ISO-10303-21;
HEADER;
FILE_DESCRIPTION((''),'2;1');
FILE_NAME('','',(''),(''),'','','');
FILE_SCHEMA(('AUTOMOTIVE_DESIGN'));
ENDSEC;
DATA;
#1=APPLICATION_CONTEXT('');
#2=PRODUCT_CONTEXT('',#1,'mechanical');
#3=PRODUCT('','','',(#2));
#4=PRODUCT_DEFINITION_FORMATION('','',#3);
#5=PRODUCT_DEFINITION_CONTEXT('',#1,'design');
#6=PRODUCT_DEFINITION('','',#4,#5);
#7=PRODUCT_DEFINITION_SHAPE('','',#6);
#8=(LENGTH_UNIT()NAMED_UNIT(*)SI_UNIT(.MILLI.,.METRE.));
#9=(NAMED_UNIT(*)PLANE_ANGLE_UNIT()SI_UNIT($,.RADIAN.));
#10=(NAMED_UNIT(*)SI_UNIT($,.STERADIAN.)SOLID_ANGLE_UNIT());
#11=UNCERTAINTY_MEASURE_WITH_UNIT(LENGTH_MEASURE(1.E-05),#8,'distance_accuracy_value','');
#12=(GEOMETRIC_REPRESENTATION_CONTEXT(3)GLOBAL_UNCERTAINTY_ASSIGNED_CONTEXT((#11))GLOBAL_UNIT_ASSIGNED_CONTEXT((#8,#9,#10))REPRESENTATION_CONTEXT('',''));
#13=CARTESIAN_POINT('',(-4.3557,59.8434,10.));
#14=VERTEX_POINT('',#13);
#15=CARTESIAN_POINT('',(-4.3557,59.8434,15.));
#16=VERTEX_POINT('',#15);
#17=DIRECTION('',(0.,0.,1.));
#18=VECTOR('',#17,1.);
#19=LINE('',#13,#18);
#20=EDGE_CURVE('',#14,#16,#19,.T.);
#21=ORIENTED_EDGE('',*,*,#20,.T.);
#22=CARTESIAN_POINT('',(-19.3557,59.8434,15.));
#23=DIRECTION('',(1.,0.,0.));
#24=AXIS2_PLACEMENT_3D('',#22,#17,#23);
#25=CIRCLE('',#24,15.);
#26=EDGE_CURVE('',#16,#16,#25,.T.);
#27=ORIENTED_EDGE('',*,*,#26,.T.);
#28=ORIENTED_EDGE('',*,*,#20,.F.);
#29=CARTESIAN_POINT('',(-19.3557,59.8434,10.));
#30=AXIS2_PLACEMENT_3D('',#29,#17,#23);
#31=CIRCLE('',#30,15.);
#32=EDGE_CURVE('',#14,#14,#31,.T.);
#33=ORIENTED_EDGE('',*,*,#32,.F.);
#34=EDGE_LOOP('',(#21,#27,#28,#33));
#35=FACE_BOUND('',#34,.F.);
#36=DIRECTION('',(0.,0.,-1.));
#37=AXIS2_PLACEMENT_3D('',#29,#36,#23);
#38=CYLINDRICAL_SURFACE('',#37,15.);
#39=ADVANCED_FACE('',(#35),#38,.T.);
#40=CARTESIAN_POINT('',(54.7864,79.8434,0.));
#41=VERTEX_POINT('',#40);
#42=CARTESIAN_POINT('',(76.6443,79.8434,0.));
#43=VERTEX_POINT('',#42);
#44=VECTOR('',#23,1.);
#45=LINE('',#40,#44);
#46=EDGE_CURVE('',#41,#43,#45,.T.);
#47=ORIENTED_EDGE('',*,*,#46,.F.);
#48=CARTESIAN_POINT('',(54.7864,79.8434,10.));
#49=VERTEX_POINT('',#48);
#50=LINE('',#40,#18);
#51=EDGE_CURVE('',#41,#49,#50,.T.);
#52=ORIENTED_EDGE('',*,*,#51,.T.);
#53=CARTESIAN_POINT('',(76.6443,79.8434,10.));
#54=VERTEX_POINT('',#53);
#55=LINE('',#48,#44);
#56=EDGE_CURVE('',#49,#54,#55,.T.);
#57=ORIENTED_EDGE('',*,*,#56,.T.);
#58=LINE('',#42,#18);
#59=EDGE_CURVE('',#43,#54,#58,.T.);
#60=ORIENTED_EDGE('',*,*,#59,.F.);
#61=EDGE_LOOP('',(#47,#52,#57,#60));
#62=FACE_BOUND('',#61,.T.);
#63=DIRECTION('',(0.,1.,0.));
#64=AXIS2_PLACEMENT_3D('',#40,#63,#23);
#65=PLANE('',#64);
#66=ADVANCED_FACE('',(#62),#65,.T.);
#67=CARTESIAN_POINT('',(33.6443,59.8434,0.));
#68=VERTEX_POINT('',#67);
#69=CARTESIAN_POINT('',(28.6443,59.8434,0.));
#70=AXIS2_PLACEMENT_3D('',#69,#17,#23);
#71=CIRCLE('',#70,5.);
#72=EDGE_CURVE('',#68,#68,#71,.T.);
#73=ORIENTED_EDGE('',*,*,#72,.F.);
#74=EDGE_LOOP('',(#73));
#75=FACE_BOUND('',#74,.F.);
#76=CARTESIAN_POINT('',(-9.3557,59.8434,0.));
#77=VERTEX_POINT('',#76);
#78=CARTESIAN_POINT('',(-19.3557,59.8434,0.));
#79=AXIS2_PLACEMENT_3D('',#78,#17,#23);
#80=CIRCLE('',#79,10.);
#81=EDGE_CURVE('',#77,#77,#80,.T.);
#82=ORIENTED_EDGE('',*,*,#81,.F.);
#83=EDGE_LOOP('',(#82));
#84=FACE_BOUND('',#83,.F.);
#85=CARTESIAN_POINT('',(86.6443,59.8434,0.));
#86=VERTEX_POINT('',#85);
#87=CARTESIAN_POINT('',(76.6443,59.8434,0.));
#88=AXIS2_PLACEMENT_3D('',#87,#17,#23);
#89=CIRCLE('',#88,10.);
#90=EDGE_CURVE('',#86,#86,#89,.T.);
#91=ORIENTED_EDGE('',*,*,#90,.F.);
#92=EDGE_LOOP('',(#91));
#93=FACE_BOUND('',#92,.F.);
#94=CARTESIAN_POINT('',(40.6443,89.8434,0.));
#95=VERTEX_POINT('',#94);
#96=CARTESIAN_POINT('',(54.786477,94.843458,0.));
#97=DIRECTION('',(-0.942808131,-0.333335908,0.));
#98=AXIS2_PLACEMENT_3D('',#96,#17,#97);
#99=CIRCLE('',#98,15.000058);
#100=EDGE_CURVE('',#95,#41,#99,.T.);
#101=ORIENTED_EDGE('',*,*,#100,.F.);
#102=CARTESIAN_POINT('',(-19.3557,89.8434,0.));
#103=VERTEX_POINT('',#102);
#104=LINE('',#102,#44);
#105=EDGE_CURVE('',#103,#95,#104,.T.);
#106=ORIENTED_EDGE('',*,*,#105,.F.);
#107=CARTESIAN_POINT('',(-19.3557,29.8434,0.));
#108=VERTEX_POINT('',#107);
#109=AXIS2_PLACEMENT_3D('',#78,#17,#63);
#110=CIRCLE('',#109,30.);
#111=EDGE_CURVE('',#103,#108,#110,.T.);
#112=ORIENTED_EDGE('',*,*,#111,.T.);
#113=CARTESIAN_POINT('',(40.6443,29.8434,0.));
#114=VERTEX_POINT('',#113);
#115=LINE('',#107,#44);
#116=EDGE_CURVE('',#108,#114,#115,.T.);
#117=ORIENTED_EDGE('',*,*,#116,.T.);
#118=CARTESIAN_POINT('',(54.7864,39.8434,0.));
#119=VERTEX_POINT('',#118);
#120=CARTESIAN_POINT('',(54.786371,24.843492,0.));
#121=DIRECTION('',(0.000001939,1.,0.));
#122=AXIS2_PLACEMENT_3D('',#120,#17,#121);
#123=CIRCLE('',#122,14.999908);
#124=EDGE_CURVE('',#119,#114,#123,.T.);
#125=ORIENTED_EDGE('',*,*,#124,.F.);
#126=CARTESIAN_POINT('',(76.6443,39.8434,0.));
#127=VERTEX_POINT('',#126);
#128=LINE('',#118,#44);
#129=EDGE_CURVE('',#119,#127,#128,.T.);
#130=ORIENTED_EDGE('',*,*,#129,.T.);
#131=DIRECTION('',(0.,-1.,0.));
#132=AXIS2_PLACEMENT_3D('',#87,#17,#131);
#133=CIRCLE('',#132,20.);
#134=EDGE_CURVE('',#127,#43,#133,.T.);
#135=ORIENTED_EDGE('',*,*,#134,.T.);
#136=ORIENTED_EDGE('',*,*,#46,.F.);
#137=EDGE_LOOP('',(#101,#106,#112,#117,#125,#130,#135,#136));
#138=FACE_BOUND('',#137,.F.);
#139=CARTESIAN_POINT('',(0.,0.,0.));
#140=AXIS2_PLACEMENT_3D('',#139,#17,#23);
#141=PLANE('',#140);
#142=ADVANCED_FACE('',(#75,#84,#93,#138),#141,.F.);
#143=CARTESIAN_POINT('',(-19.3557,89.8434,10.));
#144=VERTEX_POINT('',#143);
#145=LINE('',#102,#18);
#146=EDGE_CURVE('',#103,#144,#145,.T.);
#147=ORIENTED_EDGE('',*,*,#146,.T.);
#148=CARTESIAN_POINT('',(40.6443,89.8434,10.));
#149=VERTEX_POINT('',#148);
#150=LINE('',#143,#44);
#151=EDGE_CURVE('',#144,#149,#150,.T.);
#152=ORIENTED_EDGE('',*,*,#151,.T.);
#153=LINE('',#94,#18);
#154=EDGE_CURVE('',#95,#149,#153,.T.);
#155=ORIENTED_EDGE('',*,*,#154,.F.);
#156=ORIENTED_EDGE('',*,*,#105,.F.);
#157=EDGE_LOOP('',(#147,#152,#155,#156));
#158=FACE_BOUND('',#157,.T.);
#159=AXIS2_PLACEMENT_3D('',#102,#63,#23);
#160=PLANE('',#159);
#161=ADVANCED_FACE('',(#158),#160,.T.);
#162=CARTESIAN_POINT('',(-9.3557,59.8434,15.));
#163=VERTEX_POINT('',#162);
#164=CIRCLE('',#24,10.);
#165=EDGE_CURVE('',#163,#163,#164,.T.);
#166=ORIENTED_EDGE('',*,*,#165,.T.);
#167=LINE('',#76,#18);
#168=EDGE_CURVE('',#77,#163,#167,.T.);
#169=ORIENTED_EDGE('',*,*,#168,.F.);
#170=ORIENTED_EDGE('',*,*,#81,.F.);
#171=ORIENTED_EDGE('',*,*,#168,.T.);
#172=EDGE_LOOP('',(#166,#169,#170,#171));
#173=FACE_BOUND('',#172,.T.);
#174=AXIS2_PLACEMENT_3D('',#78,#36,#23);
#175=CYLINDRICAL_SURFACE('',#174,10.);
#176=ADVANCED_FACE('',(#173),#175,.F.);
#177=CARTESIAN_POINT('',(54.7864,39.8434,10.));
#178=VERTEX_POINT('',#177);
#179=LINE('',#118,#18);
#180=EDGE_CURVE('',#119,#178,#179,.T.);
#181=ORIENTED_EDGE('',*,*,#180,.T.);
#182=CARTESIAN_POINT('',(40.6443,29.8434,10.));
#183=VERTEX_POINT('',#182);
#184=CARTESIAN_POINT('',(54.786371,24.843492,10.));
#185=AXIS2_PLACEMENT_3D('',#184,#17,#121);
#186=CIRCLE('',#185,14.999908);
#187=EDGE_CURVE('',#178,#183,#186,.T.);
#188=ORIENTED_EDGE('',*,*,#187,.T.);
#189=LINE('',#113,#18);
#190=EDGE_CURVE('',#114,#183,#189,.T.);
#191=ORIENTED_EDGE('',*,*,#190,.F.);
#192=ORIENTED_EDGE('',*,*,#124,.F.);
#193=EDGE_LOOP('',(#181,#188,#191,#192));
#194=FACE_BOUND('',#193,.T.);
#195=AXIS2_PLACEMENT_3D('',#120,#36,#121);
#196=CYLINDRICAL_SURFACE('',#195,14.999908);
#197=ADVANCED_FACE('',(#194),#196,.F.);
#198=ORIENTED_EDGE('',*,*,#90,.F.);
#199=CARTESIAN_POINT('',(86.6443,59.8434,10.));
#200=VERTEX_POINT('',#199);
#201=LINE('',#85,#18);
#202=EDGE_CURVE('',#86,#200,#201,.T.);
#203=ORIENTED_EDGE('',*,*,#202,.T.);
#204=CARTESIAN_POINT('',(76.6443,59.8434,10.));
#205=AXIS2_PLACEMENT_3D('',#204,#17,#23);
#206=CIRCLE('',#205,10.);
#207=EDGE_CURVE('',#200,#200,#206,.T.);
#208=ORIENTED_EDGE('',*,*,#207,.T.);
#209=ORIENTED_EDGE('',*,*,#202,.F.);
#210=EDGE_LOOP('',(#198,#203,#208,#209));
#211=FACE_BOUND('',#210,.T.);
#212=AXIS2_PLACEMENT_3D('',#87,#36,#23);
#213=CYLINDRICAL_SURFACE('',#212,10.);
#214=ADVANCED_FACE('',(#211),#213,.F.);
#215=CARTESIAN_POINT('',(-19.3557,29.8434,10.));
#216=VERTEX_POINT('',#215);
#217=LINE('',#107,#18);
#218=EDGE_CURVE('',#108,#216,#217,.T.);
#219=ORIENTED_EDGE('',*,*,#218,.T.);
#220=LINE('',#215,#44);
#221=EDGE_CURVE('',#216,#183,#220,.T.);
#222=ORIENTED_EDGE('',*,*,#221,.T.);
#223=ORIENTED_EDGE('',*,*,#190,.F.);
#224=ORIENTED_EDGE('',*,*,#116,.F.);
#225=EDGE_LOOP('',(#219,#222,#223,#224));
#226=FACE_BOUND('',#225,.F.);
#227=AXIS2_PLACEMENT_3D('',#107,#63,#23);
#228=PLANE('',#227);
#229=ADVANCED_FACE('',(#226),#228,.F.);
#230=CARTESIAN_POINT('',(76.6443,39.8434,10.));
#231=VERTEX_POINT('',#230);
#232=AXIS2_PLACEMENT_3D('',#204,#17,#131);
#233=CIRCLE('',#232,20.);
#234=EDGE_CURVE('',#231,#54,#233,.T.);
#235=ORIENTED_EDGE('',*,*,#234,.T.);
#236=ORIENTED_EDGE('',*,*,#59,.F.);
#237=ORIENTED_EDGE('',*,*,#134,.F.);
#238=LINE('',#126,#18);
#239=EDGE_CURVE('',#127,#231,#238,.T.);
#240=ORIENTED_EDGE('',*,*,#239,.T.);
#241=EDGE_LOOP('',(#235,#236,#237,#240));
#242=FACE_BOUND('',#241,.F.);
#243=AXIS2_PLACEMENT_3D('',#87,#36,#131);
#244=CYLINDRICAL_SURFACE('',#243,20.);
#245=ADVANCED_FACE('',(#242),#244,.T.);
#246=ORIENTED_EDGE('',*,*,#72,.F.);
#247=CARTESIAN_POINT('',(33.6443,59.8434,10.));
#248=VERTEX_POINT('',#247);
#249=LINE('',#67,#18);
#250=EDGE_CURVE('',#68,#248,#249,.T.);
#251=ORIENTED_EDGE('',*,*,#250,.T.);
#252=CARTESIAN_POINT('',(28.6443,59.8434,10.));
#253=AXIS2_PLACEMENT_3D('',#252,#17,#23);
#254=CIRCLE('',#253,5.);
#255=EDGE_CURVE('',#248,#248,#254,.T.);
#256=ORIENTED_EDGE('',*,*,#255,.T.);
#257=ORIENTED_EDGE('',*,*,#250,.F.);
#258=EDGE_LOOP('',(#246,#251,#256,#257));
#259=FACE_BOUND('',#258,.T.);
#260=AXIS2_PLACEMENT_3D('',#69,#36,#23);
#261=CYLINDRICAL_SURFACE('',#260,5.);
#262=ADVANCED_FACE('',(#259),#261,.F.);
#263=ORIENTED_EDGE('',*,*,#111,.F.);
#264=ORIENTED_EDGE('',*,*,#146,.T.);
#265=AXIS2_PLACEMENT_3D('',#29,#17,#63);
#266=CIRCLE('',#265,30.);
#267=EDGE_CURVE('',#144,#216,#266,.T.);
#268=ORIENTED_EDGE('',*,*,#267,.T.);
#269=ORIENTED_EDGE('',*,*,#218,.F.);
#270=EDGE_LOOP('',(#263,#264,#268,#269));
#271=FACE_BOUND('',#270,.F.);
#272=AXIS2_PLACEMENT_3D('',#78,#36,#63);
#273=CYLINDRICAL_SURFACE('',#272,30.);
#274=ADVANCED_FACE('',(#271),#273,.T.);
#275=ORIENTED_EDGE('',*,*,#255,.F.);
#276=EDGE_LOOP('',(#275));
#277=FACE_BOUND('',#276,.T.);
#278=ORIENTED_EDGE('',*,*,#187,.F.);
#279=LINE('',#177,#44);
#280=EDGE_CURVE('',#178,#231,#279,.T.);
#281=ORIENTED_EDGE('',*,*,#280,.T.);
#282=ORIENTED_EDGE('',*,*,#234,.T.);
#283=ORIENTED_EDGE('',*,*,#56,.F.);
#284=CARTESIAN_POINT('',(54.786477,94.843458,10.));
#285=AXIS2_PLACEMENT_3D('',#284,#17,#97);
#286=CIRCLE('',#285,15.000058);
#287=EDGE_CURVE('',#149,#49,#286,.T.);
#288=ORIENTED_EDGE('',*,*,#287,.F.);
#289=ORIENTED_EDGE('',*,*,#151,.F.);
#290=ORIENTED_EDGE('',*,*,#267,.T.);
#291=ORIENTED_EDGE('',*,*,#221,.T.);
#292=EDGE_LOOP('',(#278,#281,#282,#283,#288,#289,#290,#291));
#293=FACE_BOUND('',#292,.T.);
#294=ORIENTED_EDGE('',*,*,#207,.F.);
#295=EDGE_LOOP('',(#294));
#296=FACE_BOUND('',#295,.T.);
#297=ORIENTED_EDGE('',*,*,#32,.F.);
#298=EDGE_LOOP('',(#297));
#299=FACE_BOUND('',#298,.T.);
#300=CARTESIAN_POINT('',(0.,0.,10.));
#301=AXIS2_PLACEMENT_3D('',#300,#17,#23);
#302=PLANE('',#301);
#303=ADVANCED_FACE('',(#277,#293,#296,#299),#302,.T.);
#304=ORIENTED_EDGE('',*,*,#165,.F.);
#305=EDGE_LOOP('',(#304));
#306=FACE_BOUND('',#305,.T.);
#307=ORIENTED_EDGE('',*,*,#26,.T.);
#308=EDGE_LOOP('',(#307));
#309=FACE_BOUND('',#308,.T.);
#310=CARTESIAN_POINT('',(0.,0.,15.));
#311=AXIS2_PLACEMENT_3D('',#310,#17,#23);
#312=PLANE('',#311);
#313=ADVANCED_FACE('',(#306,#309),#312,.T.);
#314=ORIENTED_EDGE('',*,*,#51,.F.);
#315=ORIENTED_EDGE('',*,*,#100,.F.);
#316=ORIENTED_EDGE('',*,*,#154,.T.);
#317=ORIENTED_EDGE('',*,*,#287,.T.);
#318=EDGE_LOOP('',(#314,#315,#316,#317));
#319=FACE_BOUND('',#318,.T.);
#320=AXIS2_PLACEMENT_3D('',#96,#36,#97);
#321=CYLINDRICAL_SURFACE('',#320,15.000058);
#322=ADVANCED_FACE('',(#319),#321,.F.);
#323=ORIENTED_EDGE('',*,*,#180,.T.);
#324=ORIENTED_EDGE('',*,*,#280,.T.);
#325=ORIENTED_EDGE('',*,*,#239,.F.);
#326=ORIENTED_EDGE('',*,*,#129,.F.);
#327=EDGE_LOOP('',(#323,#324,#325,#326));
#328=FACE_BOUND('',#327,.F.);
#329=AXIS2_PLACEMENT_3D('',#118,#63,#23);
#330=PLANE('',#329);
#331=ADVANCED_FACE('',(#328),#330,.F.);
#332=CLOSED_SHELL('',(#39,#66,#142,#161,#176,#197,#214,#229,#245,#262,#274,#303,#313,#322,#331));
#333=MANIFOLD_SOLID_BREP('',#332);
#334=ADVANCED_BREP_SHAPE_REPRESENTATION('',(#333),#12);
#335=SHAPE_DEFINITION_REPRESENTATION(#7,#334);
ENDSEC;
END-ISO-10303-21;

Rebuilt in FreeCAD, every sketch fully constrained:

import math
import FreeCAD as App
import Part
import Sketcher
Q = App.Units.Quantity

doc = App.newDocument("Part")
body = doc.addObject("PartDesign::Body", "Body")

# Sketch on XY plane
sketch1 = doc.addObject("Sketcher::SketchObject", "Sketch")
body.addObject(sketch1)
sketch1.AttachmentSupport = (doc.XY_Plane, [""])
sketch1.MapMode = "FlatFace"
sketch1.addGeometry([
    Part.LineSegment(App.Vector(41, 90, 0), App.Vector(-19, 90, 0)),  # 0
    Part.ArcOfCircle(Part.Circle(App.Vector(-19, 60, 0), App.Vector(0, 0, 1), 30), math.radians(90), math.radians(270)),  # 1
    Part.LineSegment(App.Vector(-19, 30, 0), App.Vector(41, 30, 0)),  # 2
    Part.ArcOfCircle(Part.Circle(App.Vector(55, 25, 0), App.Vector(0, 0, 1), 15), math.radians(90), math.radians(161)),  # 3
    Part.LineSegment(App.Vector(55, 40, 0), App.Vector(77, 40, 0)),  # 4
    Part.ArcOfCircle(Part.Circle(App.Vector(77, 60, 0), App.Vector(0, 0, 1), 20), math.radians(-90), math.radians(90)),  # 5
    Part.LineSegment(App.Vector(77, 80, 0), App.Vector(55, 80, 0)),  # 6
    Part.ArcOfCircle(Part.Circle(App.Vector(55, 95, 0), App.Vector(0, 0, 1), 15), math.radians(-161), math.radians(-90)),  # 7
    Part.Circle(App.Vector(-19, 60, 0), App.Vector(0, 0, 1), 10),  # 8
    Part.Circle(App.Vector(29, 60, 0), App.Vector(0, 0, 1), 5),  # 9
    Part.Circle(App.Vector(77, 60, 0), App.Vector(0, 0, 1), 10),  # 10
], False)
sketch1.addConstraint([
    Sketcher.Constraint("Tangent", 0, 2, 1, 1),
    Sketcher.Constraint("Tangent", 1, 2, 2, 1),
    Sketcher.Constraint("Coincident", 2, 2, 3, 2),
    Sketcher.Constraint("Tangent", 3, 1, 4, 1),
    Sketcher.Constraint("Tangent", 4, 2, 5, 1),
    Sketcher.Constraint("Tangent", 5, 2, 6, 1),
    Sketcher.Constraint("Tangent", 6, 2, 7, 2),
    Sketcher.Constraint("Coincident", 7, 1, 0, 1),
    Sketcher.Constraint("Horizontal", 0),
    Sketcher.Constraint("Horizontal", 2),
    Sketcher.Constraint("Horizontal", 4),
    Sketcher.Constraint("Horizontal", 6),
    Sketcher.Constraint("Coincident", 8, 3, 1, 3),
    Sketcher.Constraint("Coincident", 10, 3, 5, 3),
    Sketcher.Constraint("Equal", 3, 7),
    Sketcher.Constraint("Equal", 8, 10),
    Sketcher.Constraint("Horizontal", 1, 3, 5, 3),
    Sketcher.Constraint("Horizontal", 8, 3, 9, 3),
    Sketcher.Constraint("Vertical", 3, 3, 7, 3),
    Sketcher.Constraint("Diameter", 8, Q("20 mm")),
    Sketcher.Constraint("Diameter", 9, Q("10 mm")),
    Sketcher.Constraint("Radius", 1, Q("30 mm")),
    Sketcher.Constraint("Radius", 3, Q("15 mm")),
    Sketcher.Constraint("Radius", 5, Q("20 mm")),
    Sketcher.Constraint("DistanceX", 0, 2, 0, 1, Q("60 mm")),
    Sketcher.Constraint("DistanceX", 1, 3, 5, 3, Q("96 mm")),
    Sketcher.Constraint("DistanceX", 1, 3, 9, 3, Q("48 mm")),
    Sketcher.Constraint("DistanceX", 1, 3, -1, 1, Q("19.3557 mm")),
    Sketcher.Constraint("DistanceY", -1, 1, 1, 3, Q("59.8434 mm")),
])
pad1 = doc.addObject("PartDesign::Pad", "Pad")
body.addObject(pad1)
pad1.Profile = sketch1
pad1.Length = 10

# Sketch on XY plane
sketch2 = doc.addObject("Sketcher::SketchObject", "Sketch001")
body.addObject(sketch2)
sketch2.AttachmentSupport = (doc.XY_Plane, [""])
sketch2.MapMode = "FlatFace"
sketch2.AttachmentOffset = App.Placement(App.Vector(0, 0, 10), App.Rotation())
sketch2.addGeometry([
    Part.Circle(App.Vector(-19, 60, 0), App.Vector(0, 0, 1), 15),
    Part.Circle(App.Vector(-19, 60, 0), App.Vector(0, 0, 1), 10),
], False)
sketch2.addConstraint([
    Sketcher.Constraint("Coincident", 1, 3, 0, 3),
    Sketcher.Constraint("Diameter", 0, Q("30 mm")),
    Sketcher.Constraint("Diameter", 1, Q("20 mm")),
    Sketcher.Constraint("DistanceX", 0, 3, -1, 1, Q("19.3557 mm")),
    Sketcher.Constraint("DistanceY", -1, 1, 0, 3, Q("59.8434 mm")),
])
pad2 = doc.addObject("PartDesign::Pad", "Pad001")
body.addObject(pad2)
pad2.Profile = sketch2
pad2.Length = 5

doc.recompute()
